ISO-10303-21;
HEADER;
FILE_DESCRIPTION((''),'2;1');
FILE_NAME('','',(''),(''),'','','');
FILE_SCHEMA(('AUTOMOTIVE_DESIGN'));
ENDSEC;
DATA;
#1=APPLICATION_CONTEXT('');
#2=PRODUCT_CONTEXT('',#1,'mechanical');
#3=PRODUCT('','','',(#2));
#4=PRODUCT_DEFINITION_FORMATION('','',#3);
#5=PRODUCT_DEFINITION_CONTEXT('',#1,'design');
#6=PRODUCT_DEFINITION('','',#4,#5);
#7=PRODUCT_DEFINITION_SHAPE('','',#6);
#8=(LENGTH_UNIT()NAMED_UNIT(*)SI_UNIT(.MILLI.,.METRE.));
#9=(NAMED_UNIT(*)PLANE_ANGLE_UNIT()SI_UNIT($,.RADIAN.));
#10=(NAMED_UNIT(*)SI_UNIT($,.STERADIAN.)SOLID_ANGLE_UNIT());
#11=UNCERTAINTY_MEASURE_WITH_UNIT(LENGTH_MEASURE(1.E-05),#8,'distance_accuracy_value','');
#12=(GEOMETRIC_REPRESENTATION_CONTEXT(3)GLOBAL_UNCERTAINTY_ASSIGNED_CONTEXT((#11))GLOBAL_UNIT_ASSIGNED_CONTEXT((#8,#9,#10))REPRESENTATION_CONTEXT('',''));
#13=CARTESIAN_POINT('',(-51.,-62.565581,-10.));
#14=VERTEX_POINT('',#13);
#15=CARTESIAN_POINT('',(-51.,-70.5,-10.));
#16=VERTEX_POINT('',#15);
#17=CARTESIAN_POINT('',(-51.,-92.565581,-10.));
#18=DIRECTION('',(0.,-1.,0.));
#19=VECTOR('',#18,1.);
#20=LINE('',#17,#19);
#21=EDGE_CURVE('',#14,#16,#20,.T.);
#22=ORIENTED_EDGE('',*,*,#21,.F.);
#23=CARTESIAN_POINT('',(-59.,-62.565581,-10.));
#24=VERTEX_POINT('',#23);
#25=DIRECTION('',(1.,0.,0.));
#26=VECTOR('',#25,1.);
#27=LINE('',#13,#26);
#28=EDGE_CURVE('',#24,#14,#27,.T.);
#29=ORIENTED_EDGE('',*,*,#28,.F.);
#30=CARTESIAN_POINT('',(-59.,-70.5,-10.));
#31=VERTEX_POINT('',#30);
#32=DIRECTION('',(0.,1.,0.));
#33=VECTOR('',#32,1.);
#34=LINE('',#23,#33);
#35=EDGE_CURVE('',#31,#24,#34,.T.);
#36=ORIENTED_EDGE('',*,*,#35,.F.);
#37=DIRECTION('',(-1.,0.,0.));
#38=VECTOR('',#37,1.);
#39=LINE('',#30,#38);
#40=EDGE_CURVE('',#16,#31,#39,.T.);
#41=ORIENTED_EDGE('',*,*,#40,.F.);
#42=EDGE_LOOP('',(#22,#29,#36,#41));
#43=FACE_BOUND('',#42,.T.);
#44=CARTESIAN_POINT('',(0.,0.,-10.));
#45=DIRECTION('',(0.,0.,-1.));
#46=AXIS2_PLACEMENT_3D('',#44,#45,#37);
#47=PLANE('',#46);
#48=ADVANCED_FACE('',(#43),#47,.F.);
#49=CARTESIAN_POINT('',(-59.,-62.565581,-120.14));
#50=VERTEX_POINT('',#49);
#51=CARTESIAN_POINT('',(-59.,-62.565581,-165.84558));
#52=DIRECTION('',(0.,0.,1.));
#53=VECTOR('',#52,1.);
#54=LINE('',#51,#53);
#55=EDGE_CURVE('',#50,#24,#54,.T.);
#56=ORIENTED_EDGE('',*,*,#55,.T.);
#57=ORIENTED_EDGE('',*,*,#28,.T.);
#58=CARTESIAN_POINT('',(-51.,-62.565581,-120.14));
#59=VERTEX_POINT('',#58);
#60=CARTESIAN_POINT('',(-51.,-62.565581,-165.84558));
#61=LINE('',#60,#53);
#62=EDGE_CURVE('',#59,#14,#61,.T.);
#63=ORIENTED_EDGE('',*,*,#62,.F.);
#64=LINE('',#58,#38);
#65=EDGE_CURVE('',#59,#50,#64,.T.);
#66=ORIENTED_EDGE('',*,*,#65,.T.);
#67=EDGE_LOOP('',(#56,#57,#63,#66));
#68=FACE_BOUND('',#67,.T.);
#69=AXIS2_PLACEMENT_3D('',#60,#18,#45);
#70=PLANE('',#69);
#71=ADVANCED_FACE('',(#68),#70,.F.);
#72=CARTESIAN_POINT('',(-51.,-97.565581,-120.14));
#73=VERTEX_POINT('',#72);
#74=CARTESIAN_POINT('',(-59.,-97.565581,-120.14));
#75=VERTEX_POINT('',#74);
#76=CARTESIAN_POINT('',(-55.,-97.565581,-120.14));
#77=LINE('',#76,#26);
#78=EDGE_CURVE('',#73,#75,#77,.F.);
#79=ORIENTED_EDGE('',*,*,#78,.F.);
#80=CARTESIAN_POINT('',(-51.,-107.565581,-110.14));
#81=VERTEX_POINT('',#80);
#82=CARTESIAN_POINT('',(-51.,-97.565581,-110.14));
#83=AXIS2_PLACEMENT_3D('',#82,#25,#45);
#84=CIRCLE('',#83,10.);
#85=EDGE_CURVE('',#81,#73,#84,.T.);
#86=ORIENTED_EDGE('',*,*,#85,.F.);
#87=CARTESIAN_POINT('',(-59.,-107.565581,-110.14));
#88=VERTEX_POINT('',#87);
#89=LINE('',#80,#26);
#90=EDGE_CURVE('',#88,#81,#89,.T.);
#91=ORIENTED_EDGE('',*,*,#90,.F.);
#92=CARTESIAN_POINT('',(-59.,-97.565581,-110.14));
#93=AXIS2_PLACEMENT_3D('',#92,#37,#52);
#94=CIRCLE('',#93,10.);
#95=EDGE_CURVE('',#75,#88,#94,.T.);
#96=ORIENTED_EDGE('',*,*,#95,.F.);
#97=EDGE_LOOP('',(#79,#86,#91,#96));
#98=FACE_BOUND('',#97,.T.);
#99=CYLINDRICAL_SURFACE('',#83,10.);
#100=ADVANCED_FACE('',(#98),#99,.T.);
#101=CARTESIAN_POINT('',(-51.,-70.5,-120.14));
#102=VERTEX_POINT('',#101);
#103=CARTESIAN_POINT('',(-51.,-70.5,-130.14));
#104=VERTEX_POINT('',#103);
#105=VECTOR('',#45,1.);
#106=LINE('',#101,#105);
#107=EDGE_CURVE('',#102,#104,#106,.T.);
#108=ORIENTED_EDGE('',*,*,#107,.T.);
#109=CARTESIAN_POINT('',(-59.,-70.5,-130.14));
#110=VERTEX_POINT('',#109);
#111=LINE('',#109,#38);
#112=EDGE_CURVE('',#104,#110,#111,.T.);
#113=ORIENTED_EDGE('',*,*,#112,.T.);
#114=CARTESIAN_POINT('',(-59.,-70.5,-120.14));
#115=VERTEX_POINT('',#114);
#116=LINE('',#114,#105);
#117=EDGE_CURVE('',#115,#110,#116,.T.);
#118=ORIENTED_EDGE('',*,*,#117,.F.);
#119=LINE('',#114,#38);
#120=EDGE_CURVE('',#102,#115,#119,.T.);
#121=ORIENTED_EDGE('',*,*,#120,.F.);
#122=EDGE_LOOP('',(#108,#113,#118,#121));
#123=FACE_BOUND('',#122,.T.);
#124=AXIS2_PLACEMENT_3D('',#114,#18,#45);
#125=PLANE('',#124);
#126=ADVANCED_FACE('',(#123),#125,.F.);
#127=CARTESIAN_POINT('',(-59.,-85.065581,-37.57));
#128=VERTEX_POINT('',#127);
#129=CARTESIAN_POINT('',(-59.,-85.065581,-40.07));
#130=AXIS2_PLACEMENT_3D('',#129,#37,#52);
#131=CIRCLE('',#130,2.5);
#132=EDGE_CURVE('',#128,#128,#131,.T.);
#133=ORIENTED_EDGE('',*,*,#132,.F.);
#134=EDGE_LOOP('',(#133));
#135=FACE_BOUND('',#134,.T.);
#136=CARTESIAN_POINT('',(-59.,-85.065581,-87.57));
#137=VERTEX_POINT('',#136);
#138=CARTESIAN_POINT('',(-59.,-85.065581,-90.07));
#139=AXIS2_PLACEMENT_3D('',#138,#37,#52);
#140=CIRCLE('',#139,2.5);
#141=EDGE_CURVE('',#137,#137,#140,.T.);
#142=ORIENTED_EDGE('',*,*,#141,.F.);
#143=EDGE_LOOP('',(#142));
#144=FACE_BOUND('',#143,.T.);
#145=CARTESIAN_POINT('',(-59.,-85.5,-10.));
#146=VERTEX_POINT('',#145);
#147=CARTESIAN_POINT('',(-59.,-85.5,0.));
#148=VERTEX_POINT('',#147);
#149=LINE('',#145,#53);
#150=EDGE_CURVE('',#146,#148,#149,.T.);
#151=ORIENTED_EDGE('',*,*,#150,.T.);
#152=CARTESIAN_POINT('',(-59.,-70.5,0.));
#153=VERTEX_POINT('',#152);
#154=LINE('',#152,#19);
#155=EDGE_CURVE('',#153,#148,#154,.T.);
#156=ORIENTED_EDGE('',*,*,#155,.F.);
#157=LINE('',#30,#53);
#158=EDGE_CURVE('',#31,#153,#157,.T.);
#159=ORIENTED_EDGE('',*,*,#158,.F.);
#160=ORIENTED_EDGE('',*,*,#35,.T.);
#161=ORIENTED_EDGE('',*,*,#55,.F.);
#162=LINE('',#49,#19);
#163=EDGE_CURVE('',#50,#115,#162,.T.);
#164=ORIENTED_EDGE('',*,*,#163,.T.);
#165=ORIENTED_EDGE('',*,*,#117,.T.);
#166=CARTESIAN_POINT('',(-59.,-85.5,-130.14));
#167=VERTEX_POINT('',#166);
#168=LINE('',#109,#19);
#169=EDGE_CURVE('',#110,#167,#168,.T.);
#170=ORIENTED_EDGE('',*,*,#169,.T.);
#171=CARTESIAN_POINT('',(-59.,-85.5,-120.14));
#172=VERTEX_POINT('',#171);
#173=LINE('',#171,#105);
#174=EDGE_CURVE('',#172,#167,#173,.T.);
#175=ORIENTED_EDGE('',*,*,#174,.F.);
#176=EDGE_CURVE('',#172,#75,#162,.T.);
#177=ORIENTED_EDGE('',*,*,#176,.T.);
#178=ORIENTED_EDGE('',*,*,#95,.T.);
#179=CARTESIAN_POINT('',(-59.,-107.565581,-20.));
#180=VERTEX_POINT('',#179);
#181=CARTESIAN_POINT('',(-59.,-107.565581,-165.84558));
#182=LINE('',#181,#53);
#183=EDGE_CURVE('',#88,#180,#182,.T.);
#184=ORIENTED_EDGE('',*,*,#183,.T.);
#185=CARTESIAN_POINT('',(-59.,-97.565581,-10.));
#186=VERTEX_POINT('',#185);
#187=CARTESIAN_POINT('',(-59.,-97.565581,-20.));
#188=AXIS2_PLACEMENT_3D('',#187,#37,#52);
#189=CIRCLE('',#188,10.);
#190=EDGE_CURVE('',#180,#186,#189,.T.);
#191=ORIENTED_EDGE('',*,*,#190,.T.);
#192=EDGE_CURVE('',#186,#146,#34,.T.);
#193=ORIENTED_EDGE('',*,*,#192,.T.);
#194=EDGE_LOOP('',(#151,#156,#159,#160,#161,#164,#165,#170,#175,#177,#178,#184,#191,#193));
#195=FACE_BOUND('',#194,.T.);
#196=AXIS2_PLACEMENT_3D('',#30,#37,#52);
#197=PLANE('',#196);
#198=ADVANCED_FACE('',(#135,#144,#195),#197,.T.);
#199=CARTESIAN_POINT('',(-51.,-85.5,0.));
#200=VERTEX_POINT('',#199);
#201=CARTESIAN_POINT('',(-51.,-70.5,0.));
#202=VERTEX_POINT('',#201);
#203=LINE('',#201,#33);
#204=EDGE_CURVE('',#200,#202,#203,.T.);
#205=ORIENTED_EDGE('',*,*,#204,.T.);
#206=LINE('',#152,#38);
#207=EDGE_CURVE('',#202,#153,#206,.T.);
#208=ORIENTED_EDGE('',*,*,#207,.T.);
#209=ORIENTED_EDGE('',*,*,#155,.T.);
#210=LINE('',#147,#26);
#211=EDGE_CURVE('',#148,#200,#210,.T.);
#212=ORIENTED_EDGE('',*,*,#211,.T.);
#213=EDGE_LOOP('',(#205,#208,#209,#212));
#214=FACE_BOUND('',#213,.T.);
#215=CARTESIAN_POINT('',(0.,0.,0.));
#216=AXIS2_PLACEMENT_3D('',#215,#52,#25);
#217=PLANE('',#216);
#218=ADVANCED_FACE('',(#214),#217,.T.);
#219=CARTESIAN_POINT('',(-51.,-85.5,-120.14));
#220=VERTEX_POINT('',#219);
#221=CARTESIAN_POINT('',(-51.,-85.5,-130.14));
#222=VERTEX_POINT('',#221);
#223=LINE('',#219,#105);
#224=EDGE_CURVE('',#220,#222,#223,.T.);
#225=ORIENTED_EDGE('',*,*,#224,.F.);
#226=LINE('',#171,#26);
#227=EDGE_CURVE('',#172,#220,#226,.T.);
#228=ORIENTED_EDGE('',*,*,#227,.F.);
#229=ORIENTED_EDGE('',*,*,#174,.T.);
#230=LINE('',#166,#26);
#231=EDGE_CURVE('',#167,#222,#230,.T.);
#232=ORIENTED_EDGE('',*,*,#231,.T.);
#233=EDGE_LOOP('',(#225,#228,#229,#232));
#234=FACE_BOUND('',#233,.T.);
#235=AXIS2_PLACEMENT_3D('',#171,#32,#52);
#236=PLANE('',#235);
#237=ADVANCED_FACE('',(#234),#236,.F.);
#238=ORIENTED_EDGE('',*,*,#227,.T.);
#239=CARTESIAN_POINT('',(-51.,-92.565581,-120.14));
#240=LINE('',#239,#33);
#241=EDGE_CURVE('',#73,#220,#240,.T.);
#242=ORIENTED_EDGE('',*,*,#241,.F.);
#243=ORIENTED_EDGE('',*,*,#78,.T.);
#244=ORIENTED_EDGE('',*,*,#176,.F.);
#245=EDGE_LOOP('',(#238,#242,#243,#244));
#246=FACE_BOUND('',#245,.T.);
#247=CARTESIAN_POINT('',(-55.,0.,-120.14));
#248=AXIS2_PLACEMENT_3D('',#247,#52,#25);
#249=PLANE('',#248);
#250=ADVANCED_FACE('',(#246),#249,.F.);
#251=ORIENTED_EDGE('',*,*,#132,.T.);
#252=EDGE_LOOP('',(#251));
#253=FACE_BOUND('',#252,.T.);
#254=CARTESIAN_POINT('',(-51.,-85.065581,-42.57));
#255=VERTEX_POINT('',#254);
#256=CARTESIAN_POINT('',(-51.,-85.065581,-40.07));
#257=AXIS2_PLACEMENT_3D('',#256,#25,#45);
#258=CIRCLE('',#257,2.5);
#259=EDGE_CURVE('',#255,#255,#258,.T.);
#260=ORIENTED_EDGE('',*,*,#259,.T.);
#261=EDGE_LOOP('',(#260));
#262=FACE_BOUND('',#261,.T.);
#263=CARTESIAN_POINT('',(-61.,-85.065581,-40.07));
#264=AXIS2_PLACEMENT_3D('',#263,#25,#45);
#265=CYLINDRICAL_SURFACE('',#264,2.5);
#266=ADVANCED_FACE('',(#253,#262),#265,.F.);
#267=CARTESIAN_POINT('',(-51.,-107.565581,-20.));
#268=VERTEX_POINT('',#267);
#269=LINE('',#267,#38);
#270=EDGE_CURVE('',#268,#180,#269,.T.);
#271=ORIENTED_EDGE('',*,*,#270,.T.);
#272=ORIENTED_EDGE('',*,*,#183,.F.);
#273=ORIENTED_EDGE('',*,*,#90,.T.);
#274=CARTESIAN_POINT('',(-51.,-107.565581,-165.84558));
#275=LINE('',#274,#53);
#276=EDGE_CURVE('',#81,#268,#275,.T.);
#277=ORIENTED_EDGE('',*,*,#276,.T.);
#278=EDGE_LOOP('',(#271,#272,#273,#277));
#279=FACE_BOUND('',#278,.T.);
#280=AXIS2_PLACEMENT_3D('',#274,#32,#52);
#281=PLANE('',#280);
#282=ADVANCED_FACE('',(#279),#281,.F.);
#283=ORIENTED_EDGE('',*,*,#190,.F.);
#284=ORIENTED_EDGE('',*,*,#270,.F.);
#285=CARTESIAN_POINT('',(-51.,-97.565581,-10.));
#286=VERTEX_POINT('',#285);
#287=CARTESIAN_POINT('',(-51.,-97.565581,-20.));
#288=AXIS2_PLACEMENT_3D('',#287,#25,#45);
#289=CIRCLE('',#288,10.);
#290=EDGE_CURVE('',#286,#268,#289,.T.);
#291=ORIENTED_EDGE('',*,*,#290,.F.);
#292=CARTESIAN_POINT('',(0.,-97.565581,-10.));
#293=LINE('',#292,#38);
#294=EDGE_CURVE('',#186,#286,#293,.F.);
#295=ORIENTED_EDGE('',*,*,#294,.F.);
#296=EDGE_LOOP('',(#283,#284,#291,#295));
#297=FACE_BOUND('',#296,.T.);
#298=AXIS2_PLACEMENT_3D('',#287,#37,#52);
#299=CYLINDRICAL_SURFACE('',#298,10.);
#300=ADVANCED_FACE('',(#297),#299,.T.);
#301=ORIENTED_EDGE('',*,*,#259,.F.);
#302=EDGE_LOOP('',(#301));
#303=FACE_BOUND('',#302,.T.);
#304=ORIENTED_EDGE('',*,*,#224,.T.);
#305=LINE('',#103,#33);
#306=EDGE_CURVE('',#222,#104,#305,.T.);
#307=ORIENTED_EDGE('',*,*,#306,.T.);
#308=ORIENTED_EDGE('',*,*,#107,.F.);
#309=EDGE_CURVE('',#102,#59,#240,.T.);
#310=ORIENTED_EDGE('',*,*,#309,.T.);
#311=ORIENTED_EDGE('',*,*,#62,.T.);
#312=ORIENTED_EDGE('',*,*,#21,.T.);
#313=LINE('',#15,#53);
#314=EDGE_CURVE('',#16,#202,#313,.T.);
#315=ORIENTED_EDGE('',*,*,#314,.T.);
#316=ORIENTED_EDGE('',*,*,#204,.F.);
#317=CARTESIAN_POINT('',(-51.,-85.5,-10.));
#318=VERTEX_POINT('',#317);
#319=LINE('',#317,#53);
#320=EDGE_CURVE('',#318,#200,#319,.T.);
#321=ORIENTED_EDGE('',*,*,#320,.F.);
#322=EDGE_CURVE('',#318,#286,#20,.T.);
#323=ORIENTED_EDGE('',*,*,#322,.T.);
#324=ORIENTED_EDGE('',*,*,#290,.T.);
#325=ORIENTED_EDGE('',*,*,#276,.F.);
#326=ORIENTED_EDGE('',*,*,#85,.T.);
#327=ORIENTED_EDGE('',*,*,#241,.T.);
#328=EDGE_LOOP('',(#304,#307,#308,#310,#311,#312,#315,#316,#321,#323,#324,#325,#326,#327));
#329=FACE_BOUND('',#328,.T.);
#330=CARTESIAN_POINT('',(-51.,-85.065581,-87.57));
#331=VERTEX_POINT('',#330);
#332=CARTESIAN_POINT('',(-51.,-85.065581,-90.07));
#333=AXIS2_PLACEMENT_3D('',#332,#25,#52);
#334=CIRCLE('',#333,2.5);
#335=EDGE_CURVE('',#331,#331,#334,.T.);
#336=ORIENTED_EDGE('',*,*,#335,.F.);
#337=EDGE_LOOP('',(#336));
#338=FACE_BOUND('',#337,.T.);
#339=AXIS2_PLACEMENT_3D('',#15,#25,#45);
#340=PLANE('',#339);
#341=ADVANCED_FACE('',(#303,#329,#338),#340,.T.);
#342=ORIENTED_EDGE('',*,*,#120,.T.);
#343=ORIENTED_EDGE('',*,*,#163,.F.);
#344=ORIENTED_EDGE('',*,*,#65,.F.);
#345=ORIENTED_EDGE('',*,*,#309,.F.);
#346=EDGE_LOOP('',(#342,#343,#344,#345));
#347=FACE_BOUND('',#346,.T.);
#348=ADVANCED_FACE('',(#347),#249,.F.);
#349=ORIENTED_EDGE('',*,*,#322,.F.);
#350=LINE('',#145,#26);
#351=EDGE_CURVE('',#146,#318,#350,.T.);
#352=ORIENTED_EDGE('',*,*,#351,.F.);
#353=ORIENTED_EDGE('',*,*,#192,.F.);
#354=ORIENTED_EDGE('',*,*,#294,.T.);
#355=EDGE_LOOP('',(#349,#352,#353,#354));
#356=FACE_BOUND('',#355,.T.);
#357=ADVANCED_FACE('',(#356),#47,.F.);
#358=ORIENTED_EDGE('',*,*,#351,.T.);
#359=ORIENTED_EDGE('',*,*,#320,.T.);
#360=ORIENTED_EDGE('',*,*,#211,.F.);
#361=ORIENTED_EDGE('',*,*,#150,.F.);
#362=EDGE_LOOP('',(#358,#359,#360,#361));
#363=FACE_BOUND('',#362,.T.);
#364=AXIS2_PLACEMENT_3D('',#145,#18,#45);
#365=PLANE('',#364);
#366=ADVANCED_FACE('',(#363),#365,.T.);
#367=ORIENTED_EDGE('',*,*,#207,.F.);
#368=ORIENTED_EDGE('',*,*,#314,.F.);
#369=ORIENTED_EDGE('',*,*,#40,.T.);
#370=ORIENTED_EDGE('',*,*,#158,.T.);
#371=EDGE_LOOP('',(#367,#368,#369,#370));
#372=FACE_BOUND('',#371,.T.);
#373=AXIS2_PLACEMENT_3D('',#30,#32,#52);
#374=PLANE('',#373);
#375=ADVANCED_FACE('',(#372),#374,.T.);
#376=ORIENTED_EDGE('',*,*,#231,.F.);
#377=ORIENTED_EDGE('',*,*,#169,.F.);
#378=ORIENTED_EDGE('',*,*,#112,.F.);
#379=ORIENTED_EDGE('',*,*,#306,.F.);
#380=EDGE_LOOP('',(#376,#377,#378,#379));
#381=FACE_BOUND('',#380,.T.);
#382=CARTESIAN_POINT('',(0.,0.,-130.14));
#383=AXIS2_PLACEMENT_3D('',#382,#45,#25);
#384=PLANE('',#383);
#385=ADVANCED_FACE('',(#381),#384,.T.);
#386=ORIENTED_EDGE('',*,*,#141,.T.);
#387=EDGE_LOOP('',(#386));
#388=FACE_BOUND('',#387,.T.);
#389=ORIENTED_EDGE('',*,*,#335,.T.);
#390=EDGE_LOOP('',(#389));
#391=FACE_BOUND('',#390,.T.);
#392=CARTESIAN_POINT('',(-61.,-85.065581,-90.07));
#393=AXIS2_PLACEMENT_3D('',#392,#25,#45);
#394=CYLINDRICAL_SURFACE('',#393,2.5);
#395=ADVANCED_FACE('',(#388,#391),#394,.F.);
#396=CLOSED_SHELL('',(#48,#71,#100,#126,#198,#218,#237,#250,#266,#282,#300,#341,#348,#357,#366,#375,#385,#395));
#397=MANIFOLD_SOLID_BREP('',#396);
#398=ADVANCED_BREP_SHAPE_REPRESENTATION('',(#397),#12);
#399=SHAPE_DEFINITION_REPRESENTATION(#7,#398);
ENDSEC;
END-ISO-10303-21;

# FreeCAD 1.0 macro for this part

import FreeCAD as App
import Part
import Sketcher

V = App.Vector


def edges_at(feature, points):
    """Names of the edges that pass closest to the given points."""
    edges = feature.Shape.Edges
    near = lambda p: min(range(len(edges)), key=lambda i: edges[i].distToShape(Part.Vertex(*p))[0])
    return sorted({f"Edge{near(p) + 1}" for p in points})


def add_polygon(sketch, points):
    """Adds a closed chain of lines whose ends are joined by coincident constraints."""
    first, n = sketch.GeometryCount, len(points)
    for a, b in zip(points, points[1:] + points[:1]):
        sketch.addGeometry(Part.LineSegment(App.Vector(*a, 0), App.Vector(*b, 0)), False)
    for i in range(n):
        sketch.addConstraint(Sketcher.Constraint("Coincident", first + i, 2, first + (i + 1) % n, 1))

doc = App.newDocument("Part")
body = doc.addObject("PartDesign::Body", "Body")

sketch1 = doc.addObject("Sketcher::SketchObject", "Sketch")
body.addObject(sketch1)
sketch1.AttachmentSupport = (doc.XY_Plane, [""])
sketch1.MapMode = "FlatFace"
add_polygon(sketch1, [(-59, -70), (-59, -86), (-51, -86), (-51, -70)])
sketch1.addConstraint([
    Sketcher.Constraint("Vertical", 0),
    Sketcher.Constraint("Horizontal", 1),
    Sketcher.Constraint("Vertical", 2),
    Sketcher.Constraint("Horizontal", 3),
    Sketcher.Constraint("DistanceX", 1, 1, 1, 2, 8.0),
    Sketcher.Constraint("DistanceY", 0, 2, 0, 1, 15.0),
    Sketcher.Constraint("DistanceX", 0, 2, -1, 1, 59.0),
    Sketcher.Constraint("DistanceY", 0, 2, -1, 1, 85.5),
])
pad1 = doc.addObject("PartDesign::Pad", "Pad")
body.addObject(pad1)
pad1.Profile = sketch1
pad1.Length = 10
pad1.Reversed = True

sketch2 = doc.addObject("Sketcher::SketchObject", "Sketch001")
body.addObject(sketch2)
sketch2.AttachmentSupport = (doc.XY_Plane, [""])
sketch2.MapMode = "FlatFace"
sketch2.AttachmentOffset = App.Placement(V(0, 0, -10), App.Rotation())
add_polygon(sketch2, [(-59, -63), (-51, -63), (-51, -108), (-59, -108)])
sketch2.addConstraint([
    Sketcher.Constraint("Horizontal", 0),
    Sketcher.Constraint("Vertical", 1),
    Sketcher.Constraint("Horizontal", 2),
    Sketcher.Constraint("Vertical", 3),
    Sketcher.Constraint("DistanceX", 0, 1, 0, 2, 8.0),
    Sketcher.Constraint("DistanceY", 1, 2, 1, 1, 45.0),
    Sketcher.Constraint("DistanceX", 0, 2, -1, 1, 51.0),
    Sketcher.Constraint("DistanceY", 0, 2, -1, 1, 62.565581),
])
pad2 = doc.addObject("PartDesign::Pad", "Pad001")
body.addObject(pad2)
pad2.Profile = sketch2
pad2.Length = 110.14
pad2.Reversed = True
doc.recompute()

fillet = doc.addObject("PartDesign::Fillet", "Fillet")
body.addObject(fillet)
fillet.Base = (pad2, edges_at(pad2, [(-55, -107.566, -120.14), (-55, -107.566, -10)]))
fillet.Radius = 10
doc.recompute()

datumplane = doc.addObject("PartDesign::Plane", "DatumPlane")
body.addObject(datumplane)
datumplane.AttachmentSupport = (doc.XY_Plane, [""])
datumplane.MapMode = "FlatFace"
datumplane.AttachmentOffset = App.Placement(V(0, 0, -65.07), App.Rotation())
mirrored = doc.addObject("PartDesign::Mirrored", "Mirrored")
body.addObject(mirrored)
mirrored.Originals = [pad1]
mirrored.MirrorPlane = (datumplane, [""])
body.Tip = mirrored

sketch3 = doc.addObject("Sketcher::SketchObject", "Sketch002")
body.addObject(sketch3)
sketch3.AttachmentSupport = (doc.YZ_Plane, [""])
sketch3.MapMode = "FlatFace"
sketch3.AttachmentOffset = App.Placement(V(0, 0, -51), App.Rotation())
sketch3.addGeometry([
    Part.Circle(V(-85.1, -40.1, 0), V(0, 0, 1), 2.5),
    Part.Circle(V(-85.1, -90.1, 0), V(0, 0, 1), 2.5),
], False)
sketch3.addConstraint([
    Sketcher.Constraint("Equal", 0, 1),
    Sketcher.Constraint("Vertical", 0, 3, 1, 3),
    Sketcher.Constraint("Diameter", 0, 5.0),
    Sketcher.Constraint("DistanceY", 1, 3, 0, 3, 50.0),
    Sketcher.Constraint("DistanceY", 0, 3, -1, 1, 40.07),
    Sketcher.Constraint("DistanceX", 0, 3, -1, 1, 85.065581),
])
pocket1 = doc.addObject("PartDesign::Pocket", "Pocket")
body.addObject(pocket1)
pocket1.Profile = sketch3
pocket1.Length = 10

doc.recompute()
